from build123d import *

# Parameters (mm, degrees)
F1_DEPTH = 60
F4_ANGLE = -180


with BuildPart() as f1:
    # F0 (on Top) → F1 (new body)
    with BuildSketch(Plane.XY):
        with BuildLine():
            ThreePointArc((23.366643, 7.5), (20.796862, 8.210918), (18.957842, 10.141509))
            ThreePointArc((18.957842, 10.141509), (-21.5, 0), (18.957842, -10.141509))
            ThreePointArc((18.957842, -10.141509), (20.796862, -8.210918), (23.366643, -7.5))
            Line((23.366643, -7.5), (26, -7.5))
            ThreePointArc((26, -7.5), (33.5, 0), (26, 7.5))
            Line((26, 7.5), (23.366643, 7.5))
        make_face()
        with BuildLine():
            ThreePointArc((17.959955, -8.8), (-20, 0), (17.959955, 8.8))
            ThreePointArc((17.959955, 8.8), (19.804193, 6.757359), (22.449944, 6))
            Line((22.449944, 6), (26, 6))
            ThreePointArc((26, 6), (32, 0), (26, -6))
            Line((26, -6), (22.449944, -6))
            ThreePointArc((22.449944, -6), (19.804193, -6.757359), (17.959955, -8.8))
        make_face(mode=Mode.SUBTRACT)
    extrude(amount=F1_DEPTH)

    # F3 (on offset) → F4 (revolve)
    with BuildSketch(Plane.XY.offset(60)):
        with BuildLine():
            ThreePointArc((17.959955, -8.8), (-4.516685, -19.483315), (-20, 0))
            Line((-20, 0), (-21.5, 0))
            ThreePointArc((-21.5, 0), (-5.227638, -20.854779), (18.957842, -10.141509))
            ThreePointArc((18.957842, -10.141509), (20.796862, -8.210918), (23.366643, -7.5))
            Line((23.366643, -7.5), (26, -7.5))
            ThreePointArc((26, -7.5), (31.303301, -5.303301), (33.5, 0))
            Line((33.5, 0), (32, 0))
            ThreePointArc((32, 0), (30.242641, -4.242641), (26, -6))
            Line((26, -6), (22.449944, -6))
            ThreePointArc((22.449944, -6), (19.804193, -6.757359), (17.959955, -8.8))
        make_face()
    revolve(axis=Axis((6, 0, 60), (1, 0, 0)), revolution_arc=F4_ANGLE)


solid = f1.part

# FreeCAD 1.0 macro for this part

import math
import FreeCAD as App
import Part
import Sketcher
Q = App.Units.Quantity

doc = App.newDocument("Part")
body = doc.addObject("PartDesign::Body", "Body")

sketch1 = doc.addObject("Sketcher::SketchObject", "Sketch")
body.addObject(sketch1)
sketch1.AttachmentSupport = (doc.XY_Plane, [""])
sketch1.MapMode = "FlatFace"
sketch1.addGeometry([
    Part.ArcOfCircle(Part.Circle(App.Vector(23.4, 12.5, 0), App.Vector(0, 0, 1), 5), math.radians(-152), math.radians(-90)),
    Part.ArcOfCircle(Part.Circle(App.Vector(0, 0, 0), App.Vector(0, 0, 1), 21.5), math.radians(28), math.radians(332)),
    Part.ArcOfCircle(Part.Circle(App.Vector(23.4, -12.5, 0), App.Vector(0, 0, 1), 5), math.radians(90), math.radians(152)),
    Part.LineSegment(App.Vector(23.4, -7.5, 0), App.Vector(26, -7.5, 0)),
    Part.ArcOfCircle(Part.Circle(App.Vector(26, 0, 0), App.Vector(0, 0, 1), 7.5), math.radians(-90), math.radians(90)),
    Part.LineSegment(App.Vector(26, 7.5, 0), App.Vector(23.4, 7.5, 0)),
    Part.ArcOfCircle(Part.Circle(App.Vector(22.4, -11, 0), App.Vector(0, 0, 1), 5), math.radians(90), math.radians(154)),
    Part.ArcOfCircle(Part.Circle(App.Vector(0, 0, 0), App.Vector(0, 0, 1), 20), math.radians(26), math.radians(334)),
    Part.ArcOfCircle(Part.Circle(App.Vector(22.4, 11, 0), App.Vector(0, 0, 1), 5), math.radians(-154), math.radians(-90)),
    Part.LineSegment(App.Vector(22.4, 6, 0), App.Vector(26, 6, 0)),
    Part.ArcOfCircle(Part.Circle(App.Vector(26, 0, 0), App.Vector(0, 0, 1), 6), math.radians(-90), math.radians(90)),
    Part.LineSegment(App.Vector(26, -6, 0), App.Vector(22.4, -6, 0)),
], False)
sketch1.addConstraint([
    Sketcher.Constraint("Tangent", 0, 1, 1, 1),
    Sketcher.Constraint("Tangent", 1, 2, 2, 2),
    Sketcher.Constraint("Tangent", 2, 1, 3, 1),
    Sketcher.Constraint("Tangent", 3, 2, 4, 1),
    Sketcher.Constraint("Tangent", 4, 2, 5, 1),
    Sketcher.Constraint("Tangent", 5, 2, 0, 2),
    Sketcher.Constraint("Tangent", 6, 2, 7, 2),
    Sketcher.Constraint("Tangent", 7, 1, 8, 1),
    Sketcher.Constraint("Tangent", 8, 2, 9, 1),
    Sketcher.Constraint("Tangent", 9, 2, 10, 2),
    Sketcher.Constraint("Tangent", 10, 1, 11, 1),
    Sketcher.Constraint("Tangent", 11, 2, 6, 1),
    Sketcher.Constraint("Horizontal", 3),
    Sketcher.Constraint("Horizontal", 5),
    Sketcher.Constraint("Horizontal", 9),
    Sketcher.Constraint("Horizontal", 11),
    Sketcher.Constraint("Coincident", 1, 3, -1, 1),
    Sketcher.Constraint("Coincident", 7, 3, -1, 1),
    Sketcher.Constraint("Coincident", 10, 3, 4, 3),
    Sketcher.Constraint("Equal", 0, 2),
    Sketcher.Constraint("Equal", 6, 8),
    Sketcher.Constraint("PointOnObject", 4, 3, -1),
    Sketcher.Constraint("Radius", 6, Q("5 mm")),
    Sketcher.Constraint("Radius", 7, Q("20 mm")),
    Sketcher.Constraint("Radius", 10, Q("6 mm")),
    Sketcher.Constraint("Radius", 1, Q("21.5 mm")),
    Sketcher.Constraint("Radius", 4, Q("7.5 mm")),
    Sketcher.Constraint("DistanceX", -1, 1, 4, 3, Q("26 mm")),
    Sketcher.Constraint("Radius", 0, Q("5.000003 mm")),
])
pad1 = doc.addObject("PartDesign::Pad", "Pad")
body.addObject(pad1)
pad1.Profile = sketch1
pad1.Length = 60

sketch2 = doc.addObject("Sketcher::SketchObject", "Sketch001")
body.addObject(sketch2)
sketch2.AttachmentSupport = (doc.XY_Plane, [""])
sketch2.MapMode = "FlatFace"
sketch2.AttachmentOffset = App.Placement(App.Vector(0, 0, 60), App.Rotation())
sketch2.addGeometry([
    Part.ArcOfCircle(Part.Circle(App.Vector(0, 0, 0), App.Vector(0, 0, 1), 20), math.radians(180), math.radians(334)),
    Part.LineSegment(App.Vector(-20, 0, 0), App.Vector(-21.5, 0, 0)),
    Part.ArcOfCircle(Part.Circle(App.Vector(0, 0, 0), App.Vector(0, 0, 1), 21.5), math.radians(180), math.radians(332)),
    Part.ArcOfCircle(Part.Circle(App.Vector(23.4, -12.5, 0), App.Vector(0, 0, 1), 5), math.radians(90), math.radians(152)),
    Part.LineSegment(App.Vector(23.4, -7.5, 0), App.Vector(26, -7.5, 0)),
    Part.ArcOfCircle(Part.Circle(App.Vector(26, 0, 0), App.Vector(0, 0, 1), 7.5), math.radians(-90), math.radians(0)),
    Part.LineSegment(App.Vector(33.5, 0, 0), App.Vector(32, 0, 0)),
    Part.ArcOfCircle(Part.Circle(App.Vector(26, 0, 0), App.Vector(0, 0, 1), 6), math.radians(-90), math.radians(0)),
    Part.LineSegment(App.Vector(26, -6, 0), App.Vector(22.4, -6, 0)),
    Part.ArcOfCircle(Part.Circle(App.Vector(22.4, -11, 0), App.Vector(0, 0, 1), 5), math.radians(90), math.radians(154)),
], False)
sketch2.addConstraint([
    Sketcher.Constraint("Coincident", 0, 1, 1, 1),
    Sketcher.Constraint("Coincident", 1, 2, 2, 1),
    Sketcher.Constraint("Tangent", 2, 2, 3, 2),
    Sketcher.Constraint("Tangent", 3, 1, 4, 1),
    Sketcher.Constraint("Tangent", 4, 2, 5, 1),
    Sketcher.Constraint("Coincident", 5, 2, 6, 1),
    Sketcher.Constraint("Coincident", 6, 2, 7, 2),
    Sketcher.Constraint("Tangent", 7, 1, 8, 1),
    Sketcher.Constraint("Tangent", 8, 2, 9, 1),
    Sketcher.Constraint("Tangent", 9, 2, 0, 2),
    Sketcher.Constraint("Horizontal", 1),
    Sketcher.Constraint("Horizontal", 4),
    Sketcher.Constraint("Horizontal", 6),
    Sketcher.Constraint("Horizontal", 8),
    Sketcher.Constraint("Coincident", 0, 3, -1, 1),
    Sketcher.Constraint("Coincident", 2, 3, -1, 1),
    Sketcher.Constraint("Coincident", 7, 3, 5, 3),
    Sketcher.Constraint("PointOnObject", 5, 3, -1),
    Sketcher.Constraint("PointOnObject", 0, 1, -1),
    Sketcher.Constraint("PointOnObject", 5, 2, -1),
    Sketcher.Constraint("Equal", 1, 6),
    Sketcher.Constraint("Radius", 0, Q("20 mm")),
    Sketcher.Constraint("Radius", 7, Q("5.999999 mm")),
    Sketcher.Constraint("Radius", 9, Q("5 mm")),
    Sketcher.Constraint("Radius", 2, Q("21.5 mm")),
    Sketcher.Constraint("DistanceX", -1, 1, 5, 3, Q("26 mm")),
    Sketcher.Constraint("DistanceY", 3, 3, 7, 3, Q("12.500002 mm")),
])
revolution = doc.addObject("PartDesign::Revolution", "Revolution")
body.addObject(revolution)
revolution.Profile = sketch2
revolution.ReferenceAxis = (sketch2, ["H_Axis"])
revolution.Angle = 180
revolution.Reversed = True

doc.recompute()
